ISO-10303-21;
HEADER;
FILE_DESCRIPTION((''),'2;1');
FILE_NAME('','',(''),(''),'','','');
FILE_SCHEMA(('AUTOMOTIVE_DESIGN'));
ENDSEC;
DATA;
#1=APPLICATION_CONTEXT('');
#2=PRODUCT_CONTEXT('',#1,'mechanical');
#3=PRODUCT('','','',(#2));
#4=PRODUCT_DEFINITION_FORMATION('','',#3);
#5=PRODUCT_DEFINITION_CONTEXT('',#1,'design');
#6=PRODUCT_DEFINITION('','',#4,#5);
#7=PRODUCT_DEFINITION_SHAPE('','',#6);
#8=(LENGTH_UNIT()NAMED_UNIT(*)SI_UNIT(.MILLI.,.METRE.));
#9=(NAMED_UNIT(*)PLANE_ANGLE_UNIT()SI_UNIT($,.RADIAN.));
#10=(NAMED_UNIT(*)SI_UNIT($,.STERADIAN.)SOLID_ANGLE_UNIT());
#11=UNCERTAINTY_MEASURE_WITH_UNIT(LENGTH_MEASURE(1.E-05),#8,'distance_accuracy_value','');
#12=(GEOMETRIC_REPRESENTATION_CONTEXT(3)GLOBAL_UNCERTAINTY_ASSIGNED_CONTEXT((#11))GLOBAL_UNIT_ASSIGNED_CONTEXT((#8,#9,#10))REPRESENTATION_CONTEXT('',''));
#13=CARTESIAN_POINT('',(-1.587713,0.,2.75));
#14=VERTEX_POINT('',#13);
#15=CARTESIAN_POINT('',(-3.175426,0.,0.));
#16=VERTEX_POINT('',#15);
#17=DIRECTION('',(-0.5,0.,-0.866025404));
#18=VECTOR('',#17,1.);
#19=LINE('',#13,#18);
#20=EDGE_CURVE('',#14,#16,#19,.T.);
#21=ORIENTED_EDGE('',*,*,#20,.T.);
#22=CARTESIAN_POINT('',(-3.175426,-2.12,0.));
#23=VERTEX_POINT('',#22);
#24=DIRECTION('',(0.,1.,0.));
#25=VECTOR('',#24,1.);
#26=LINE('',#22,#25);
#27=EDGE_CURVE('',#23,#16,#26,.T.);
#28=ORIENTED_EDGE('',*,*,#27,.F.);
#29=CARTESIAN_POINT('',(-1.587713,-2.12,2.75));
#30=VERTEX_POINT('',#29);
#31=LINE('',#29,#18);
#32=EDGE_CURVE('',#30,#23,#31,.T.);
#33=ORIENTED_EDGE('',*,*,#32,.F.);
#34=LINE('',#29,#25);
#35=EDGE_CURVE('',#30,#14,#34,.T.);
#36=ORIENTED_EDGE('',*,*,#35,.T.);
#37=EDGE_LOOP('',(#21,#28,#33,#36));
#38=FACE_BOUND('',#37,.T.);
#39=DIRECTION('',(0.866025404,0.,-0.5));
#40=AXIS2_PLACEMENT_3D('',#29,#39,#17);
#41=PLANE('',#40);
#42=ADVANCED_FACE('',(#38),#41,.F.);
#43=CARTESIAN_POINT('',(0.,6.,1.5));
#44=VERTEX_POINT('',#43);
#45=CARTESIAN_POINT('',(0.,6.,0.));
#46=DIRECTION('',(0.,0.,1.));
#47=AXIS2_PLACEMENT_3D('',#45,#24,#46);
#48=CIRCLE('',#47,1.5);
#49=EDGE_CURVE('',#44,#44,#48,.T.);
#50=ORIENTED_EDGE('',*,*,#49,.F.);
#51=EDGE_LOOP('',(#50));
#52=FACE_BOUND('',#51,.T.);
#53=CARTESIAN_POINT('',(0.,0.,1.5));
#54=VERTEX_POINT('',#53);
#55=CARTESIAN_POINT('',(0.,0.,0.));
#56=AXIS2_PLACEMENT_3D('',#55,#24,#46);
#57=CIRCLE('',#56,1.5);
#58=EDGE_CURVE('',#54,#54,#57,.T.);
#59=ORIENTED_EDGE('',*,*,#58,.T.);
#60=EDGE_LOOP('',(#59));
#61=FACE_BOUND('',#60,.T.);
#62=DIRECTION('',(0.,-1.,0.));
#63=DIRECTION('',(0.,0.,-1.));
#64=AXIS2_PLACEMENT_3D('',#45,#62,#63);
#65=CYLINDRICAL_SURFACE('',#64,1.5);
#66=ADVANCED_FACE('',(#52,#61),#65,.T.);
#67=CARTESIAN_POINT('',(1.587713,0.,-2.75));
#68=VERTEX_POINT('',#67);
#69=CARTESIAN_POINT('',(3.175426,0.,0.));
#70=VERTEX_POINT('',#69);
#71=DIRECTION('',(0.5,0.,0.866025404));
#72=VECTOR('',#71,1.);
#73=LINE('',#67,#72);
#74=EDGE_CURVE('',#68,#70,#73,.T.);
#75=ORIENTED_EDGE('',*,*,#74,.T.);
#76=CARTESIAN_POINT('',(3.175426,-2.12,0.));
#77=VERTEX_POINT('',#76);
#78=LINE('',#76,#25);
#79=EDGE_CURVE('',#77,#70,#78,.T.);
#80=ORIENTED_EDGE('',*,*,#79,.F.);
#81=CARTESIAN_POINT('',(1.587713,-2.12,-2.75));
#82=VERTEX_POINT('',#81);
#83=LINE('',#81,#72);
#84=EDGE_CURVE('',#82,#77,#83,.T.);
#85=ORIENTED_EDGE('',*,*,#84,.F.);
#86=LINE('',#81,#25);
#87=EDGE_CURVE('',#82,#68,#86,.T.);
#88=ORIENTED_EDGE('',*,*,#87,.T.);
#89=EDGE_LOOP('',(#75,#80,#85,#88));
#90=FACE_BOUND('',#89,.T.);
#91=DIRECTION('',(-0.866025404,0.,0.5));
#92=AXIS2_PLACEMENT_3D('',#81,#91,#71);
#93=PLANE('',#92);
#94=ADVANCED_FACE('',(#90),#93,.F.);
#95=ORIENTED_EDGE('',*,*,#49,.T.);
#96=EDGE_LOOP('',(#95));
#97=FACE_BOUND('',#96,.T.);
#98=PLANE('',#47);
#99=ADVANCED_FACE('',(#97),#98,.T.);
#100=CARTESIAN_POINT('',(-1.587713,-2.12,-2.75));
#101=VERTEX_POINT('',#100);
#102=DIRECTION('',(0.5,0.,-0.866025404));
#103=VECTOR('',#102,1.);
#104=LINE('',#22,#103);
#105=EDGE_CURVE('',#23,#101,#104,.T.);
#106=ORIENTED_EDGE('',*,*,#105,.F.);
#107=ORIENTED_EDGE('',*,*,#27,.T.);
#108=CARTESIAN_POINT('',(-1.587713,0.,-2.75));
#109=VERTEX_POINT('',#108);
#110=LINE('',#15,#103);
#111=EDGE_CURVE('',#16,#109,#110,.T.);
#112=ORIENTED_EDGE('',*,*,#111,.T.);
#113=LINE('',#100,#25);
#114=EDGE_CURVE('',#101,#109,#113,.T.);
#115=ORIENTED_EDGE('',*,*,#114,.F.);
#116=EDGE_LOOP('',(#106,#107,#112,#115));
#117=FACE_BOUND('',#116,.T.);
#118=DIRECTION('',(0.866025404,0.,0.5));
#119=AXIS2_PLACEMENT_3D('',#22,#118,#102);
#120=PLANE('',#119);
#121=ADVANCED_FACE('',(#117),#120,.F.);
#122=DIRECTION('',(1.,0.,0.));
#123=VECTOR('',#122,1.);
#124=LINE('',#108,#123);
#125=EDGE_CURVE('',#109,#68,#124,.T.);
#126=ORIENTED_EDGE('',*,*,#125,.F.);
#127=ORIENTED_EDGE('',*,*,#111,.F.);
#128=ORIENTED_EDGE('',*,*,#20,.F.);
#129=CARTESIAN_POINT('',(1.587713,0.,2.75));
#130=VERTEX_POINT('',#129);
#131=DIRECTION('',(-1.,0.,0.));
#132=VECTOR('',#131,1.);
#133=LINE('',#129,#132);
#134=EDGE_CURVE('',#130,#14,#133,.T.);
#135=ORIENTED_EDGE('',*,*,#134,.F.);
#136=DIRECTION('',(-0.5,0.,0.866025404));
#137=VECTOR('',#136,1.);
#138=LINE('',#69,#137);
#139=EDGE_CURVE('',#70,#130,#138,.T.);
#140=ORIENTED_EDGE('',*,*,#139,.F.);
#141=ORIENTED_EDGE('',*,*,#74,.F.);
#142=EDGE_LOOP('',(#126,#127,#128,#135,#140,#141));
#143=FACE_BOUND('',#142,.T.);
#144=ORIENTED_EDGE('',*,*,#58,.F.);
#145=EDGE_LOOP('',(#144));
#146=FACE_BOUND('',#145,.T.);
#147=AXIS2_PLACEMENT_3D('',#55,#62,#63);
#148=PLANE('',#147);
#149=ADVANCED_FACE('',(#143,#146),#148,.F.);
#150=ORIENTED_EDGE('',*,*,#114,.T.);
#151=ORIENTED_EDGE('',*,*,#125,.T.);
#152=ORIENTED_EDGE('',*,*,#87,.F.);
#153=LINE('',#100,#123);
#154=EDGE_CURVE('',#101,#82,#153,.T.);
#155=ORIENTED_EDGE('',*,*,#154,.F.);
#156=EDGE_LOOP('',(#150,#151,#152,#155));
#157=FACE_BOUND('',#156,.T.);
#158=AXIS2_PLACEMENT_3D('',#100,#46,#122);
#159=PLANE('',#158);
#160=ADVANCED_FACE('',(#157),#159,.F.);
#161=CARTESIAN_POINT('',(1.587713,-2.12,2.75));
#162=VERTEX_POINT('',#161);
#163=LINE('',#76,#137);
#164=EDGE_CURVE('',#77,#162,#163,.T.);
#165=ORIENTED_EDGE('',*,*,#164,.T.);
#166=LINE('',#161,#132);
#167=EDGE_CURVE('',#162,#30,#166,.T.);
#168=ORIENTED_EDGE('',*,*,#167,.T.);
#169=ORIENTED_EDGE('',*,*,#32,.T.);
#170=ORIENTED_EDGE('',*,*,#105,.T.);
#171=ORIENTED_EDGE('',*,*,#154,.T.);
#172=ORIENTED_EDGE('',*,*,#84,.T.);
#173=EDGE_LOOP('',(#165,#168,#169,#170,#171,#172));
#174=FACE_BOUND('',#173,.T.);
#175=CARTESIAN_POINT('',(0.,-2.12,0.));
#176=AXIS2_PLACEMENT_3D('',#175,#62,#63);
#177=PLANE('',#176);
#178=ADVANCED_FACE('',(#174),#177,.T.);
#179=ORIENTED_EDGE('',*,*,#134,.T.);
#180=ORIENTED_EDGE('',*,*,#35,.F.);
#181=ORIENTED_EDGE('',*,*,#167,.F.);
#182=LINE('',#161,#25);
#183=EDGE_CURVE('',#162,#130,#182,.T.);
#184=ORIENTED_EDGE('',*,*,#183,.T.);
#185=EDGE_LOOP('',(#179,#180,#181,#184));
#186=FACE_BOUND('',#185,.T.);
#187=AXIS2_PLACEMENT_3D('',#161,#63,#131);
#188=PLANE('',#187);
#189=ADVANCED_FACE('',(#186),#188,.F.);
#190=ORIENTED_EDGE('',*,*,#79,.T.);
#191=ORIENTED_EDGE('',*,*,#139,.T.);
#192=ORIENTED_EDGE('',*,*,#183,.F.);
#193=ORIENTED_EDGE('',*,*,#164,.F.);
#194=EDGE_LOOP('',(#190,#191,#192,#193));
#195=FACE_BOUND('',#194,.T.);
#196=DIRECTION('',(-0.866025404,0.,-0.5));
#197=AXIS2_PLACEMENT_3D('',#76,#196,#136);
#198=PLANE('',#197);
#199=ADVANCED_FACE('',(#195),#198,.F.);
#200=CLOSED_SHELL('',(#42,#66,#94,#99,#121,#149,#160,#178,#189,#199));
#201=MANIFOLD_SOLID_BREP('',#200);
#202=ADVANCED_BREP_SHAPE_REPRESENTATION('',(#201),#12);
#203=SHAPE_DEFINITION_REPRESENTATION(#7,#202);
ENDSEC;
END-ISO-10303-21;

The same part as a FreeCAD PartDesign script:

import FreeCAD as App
import Part
import Sketcher
from FreeCAD import Vector
Q = App.Units.Quantity


def add_polygon(sketch, points):
    """Adds a closed chain of lines whose ends are joined by coincident constraints."""
    first, n = sketch.GeometryCount, len(points)
    for a, b in zip(points, points[1:] + points[:1]):
        sketch.addGeometry(Part.LineSegment(App.Vector(*a, 0), App.Vector(*b, 0)), False)
    for i in range(n):
        sketch.addConstraint(Sketcher.Constraint("Coincident", first + i, 2, first + (i + 1) % n, 1))

doc = App.newDocument("Part")
body = doc.addObject("PartDesign::Body", "Body")

# Sketch on XZ plane
sketch1 = doc.addObject("Sketcher::SketchObject", "Sketch")
body.addObject(sketch1)
sketch1.AttachmentSupport = (doc.XZ_Plane, [""])
sketch1.MapMode = "FlatFace"
sketch1.addGeometry(Part.Circle(Vector(0, 0, 0), Vector(0, 0, 1), 1.5), False)
sketch1.addConstraint(Sketcher.Constraint("Coincident", 0, 3, -1, 1))
sketch1.addConstraint(Sketcher.Constraint("Diameter", 0, Q("3 mm")))
pad1 = doc.addObject("PartDesign::Pad", "Pad")
body.addObject(pad1)
pad1.Profile = sketch1
pad1.Length = 6
pad1.Reversed = True

# Sketch on XZ plane
sketch2 = doc.addObject("Sketcher::SketchObject", "Sketch001")
body.addObject(sketch2)
sketch2.AttachmentSupport = (doc.XZ_Plane, [""])
sketch2.MapMode = "FlatFace"
add_polygon(sketch2, [(3.2, 0), (1.6, 2.8), (-1.6, 2.8), (-3.2, 0), (-1.6, -2.8), (1.6, -2.8)])  # lines 0-5
sketch2.addConstraint(Sketcher.Constraint("Horizontal", 1))
sketch2.addConstraint(Sketcher.Constraint("Horizontal", 4))
sketch2.addConstraint(Sketcher.Constraint("Symmetric", 0, 2, 3, 2, -1, 1))
sketch2.addConstraint(Sketcher.Constraint("Symmetric", 2, 2, 5, 2, -1, 1))
sketch2.addConstraint(Sketcher.Constraint("PointOnObject", 2, 2, -1))
sketch2.addConstraint(Sketcher.Constraint("Parallel", 2, 5))
sketch2.addConstraint(Sketcher.Constraint("Vertical", 1, 2, 3, 2))
sketch2.addConstraint(Sketcher.Constraint("Angle", 0, Q("120 deg")))
sketch2.addConstraint(Sketcher.Constraint("DistanceY", 3, 2, 1, 2, Q("5.5 mm")))
sketch2.addConstraint(Sketcher.Constraint("DistanceX", 1, 2, 1, 1, Q("3.175426 mm")))
pad2 = doc.addObject("PartDesign::Pad", "Pad001")
body.addObject(pad2)
pad2.Profile = sketch2
pad2.Length = 2.12

doc.recompute()
